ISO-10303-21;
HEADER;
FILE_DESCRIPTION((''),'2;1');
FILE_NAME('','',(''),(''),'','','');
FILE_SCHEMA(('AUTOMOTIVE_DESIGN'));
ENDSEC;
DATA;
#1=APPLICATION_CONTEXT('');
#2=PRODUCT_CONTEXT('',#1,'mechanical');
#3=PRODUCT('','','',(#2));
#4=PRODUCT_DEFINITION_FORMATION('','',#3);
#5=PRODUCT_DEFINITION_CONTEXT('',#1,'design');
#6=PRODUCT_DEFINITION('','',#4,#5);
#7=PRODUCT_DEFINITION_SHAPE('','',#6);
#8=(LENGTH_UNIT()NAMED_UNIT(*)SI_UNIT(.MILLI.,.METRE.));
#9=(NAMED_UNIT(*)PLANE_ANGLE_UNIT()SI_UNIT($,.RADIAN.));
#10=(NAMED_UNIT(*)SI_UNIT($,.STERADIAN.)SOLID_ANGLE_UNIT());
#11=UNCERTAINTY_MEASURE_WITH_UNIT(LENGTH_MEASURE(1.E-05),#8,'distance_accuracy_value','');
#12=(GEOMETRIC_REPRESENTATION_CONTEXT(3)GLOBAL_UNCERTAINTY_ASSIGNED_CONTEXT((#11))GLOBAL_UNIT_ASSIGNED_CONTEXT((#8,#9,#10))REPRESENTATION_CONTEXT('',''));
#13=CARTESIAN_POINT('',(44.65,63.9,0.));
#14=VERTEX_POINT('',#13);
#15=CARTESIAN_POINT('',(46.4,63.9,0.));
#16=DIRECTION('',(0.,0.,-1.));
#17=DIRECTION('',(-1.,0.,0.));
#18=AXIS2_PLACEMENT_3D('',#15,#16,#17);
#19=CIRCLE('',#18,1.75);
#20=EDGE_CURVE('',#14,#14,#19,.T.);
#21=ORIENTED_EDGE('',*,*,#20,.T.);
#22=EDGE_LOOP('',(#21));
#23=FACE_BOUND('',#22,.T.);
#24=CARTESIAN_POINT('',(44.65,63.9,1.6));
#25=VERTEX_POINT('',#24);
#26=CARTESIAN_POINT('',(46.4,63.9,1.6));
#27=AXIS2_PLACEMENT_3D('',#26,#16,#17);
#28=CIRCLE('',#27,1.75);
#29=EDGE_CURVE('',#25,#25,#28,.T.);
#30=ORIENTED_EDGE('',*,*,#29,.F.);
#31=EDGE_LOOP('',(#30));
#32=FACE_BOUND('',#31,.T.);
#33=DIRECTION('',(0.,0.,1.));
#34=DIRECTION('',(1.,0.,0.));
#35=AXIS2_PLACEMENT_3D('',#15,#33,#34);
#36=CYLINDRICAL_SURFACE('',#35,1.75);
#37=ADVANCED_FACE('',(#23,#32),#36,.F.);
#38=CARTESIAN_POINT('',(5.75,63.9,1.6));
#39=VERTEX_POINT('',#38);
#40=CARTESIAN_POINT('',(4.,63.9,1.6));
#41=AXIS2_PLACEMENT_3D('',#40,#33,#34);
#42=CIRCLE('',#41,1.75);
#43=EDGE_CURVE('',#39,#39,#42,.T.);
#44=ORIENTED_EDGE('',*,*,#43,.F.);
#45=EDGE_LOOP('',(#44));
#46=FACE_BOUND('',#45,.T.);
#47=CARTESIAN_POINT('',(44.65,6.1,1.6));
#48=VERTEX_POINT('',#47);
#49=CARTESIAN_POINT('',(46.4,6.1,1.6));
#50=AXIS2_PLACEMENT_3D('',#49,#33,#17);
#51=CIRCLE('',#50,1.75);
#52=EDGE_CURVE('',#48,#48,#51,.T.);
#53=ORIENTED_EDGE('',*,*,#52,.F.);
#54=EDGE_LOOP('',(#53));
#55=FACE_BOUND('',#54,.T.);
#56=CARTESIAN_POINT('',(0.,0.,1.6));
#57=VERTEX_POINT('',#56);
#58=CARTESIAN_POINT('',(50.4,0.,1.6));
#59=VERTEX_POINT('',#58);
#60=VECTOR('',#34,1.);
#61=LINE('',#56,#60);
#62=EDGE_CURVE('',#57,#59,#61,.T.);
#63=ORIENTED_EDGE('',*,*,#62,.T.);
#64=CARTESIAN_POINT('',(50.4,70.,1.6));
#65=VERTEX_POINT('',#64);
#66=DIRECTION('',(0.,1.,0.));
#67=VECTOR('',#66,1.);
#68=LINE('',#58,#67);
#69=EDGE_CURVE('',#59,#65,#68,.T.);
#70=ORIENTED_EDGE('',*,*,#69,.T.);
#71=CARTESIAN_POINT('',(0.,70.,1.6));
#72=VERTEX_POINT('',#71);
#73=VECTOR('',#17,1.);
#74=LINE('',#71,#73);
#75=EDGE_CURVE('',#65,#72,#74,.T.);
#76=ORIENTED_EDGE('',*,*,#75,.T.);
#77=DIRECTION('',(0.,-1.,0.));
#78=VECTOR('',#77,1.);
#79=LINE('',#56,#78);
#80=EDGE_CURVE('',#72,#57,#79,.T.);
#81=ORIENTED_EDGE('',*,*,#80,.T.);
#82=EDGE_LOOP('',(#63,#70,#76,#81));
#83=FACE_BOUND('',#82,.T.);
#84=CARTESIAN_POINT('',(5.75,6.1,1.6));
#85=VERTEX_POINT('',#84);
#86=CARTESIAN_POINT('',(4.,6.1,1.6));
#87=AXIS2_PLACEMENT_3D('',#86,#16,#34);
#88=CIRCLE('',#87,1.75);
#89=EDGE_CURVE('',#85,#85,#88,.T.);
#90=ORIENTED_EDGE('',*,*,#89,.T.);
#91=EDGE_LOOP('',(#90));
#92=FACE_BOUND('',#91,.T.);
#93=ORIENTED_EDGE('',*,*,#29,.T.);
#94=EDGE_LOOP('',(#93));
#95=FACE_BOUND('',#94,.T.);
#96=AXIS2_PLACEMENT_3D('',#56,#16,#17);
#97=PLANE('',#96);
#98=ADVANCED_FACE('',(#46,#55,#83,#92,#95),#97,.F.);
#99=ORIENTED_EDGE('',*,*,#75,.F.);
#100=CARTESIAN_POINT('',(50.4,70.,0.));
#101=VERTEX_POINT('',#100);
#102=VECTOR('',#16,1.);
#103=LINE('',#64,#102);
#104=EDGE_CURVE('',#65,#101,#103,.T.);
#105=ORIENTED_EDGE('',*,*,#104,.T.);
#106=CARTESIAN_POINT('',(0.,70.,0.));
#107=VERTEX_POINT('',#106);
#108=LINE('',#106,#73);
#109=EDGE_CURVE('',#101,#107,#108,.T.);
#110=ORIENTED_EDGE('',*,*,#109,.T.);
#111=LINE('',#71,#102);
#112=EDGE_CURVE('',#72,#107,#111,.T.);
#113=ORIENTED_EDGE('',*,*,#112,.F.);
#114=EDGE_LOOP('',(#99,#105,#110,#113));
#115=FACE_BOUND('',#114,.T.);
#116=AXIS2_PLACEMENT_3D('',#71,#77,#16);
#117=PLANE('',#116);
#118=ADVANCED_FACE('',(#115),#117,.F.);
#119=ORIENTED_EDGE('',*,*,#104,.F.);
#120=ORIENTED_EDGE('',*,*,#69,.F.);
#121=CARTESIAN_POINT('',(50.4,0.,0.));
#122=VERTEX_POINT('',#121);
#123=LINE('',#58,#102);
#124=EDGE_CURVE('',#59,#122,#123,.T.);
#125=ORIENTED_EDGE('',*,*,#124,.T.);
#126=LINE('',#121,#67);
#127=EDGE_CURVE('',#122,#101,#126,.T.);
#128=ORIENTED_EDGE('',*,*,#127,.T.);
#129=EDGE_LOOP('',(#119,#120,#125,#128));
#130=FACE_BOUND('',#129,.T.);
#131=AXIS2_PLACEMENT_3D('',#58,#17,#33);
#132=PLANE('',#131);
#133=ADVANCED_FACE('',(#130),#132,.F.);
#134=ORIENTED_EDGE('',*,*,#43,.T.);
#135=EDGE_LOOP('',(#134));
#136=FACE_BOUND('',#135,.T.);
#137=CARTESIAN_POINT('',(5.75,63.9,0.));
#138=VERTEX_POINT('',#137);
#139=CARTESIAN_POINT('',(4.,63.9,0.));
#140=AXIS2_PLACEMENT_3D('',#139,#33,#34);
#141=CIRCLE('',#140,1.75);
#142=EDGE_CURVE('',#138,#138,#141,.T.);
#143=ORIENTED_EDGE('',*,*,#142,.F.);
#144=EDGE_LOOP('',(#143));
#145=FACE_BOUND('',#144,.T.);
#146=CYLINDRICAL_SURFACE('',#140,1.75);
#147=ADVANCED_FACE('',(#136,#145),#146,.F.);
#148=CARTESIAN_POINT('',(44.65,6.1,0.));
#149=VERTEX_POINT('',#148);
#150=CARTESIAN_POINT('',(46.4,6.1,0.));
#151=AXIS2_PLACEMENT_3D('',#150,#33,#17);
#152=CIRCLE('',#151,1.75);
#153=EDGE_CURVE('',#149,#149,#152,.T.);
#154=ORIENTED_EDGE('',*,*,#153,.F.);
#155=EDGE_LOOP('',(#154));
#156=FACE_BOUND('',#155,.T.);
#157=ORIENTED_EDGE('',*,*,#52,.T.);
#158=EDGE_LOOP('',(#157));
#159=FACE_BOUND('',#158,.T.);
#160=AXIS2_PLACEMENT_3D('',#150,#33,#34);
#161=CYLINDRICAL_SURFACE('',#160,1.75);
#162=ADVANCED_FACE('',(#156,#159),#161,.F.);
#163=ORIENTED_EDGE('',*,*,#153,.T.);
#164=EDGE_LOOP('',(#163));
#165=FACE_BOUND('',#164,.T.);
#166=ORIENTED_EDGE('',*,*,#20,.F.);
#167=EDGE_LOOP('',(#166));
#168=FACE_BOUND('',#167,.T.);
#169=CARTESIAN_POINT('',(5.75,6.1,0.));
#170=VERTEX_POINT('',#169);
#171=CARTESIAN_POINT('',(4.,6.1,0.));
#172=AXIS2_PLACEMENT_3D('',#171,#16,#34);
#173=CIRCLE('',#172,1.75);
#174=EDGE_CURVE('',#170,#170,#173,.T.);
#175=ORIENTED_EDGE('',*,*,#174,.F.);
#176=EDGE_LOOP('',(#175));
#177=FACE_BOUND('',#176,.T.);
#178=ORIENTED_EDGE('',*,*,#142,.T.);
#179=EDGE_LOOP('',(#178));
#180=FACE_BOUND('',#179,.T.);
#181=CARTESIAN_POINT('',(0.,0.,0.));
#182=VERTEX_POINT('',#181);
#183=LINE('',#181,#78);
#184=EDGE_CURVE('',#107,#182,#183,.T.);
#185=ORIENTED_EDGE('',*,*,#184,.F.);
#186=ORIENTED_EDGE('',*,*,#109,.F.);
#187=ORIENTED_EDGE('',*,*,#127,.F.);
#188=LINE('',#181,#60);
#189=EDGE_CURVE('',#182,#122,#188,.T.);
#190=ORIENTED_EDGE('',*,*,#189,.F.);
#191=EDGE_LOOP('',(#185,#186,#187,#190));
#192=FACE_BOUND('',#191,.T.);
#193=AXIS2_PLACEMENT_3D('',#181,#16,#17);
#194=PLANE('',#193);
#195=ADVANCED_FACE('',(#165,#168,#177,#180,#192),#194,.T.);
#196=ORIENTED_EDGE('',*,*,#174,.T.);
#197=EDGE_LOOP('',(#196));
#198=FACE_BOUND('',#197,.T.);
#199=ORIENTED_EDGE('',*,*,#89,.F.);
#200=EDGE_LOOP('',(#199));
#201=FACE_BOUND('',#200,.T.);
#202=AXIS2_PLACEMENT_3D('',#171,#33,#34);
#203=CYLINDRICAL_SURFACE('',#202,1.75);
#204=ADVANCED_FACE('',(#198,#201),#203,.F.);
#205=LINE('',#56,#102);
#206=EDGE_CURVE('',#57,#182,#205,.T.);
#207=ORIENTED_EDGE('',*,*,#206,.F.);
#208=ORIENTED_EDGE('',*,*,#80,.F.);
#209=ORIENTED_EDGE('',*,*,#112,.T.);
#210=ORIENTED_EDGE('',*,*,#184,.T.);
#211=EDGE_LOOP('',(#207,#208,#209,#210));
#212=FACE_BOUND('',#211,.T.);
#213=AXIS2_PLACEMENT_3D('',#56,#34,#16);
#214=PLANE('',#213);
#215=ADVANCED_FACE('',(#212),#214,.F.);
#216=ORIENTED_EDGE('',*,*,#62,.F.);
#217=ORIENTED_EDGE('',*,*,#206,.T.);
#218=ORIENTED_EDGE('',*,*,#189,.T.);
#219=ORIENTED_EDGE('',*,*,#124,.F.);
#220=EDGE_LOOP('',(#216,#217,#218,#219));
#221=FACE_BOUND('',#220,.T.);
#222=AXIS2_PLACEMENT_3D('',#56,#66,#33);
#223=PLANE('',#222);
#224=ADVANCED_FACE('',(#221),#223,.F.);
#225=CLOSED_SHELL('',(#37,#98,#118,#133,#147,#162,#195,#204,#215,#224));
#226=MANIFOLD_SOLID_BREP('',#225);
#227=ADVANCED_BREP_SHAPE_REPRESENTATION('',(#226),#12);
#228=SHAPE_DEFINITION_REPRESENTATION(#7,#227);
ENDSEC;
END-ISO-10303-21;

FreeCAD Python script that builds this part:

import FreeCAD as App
import Part
import Sketcher

V = App.Vector


def add_polygon(sketch, points):
    """Adds a closed chain of lines whose ends are joined by coincident constraints."""
    first, n = sketch.GeometryCount, len(points)
    for a, b in zip(points, points[1:] + points[:1]):
        sketch.addGeometry(Part.LineSegment(App.Vector(*a, 0), App.Vector(*b, 0)), False)
    for i in range(n):
        sketch.addConstraint(Sketcher.Constraint("Coincident", first + i, 2, first + (i + 1) % n, 1))

doc = App.newDocument("Part")
body = doc.addObject("PartDesign::Body", "Body")

sketch1 = body.newObject("Sketcher::SketchObject", "Sketch")
sketch1.AttachmentSupport = (doc.getObject("XY_Plane"), [""])
sketch1.MapMode = "FlatFace"
add_polygon(sketch1, [(0, 70), (0, 0), (50.4, 0), (50.4, 70)])
sketch1.addConstraint(Sketcher.Constraint("Vertical", 0))
sketch1.addConstraint(Sketcher.Constraint("Horizontal", 1))
sketch1.addConstraint(Sketcher.Constraint("Vertical", 2))
sketch1.addConstraint(Sketcher.Constraint("Horizontal", 3))
sketch1.addConstraint(Sketcher.Constraint("Coincident", 0, 2, -1, 1))
sketch1.addConstraint(Sketcher.Constraint("DistanceY", 0, 2, 0, 1, 70.0))
sketch1.addConstraint(Sketcher.Constraint("DistanceX", 1, 1, 1, 2, 50.4))
pad1 = body.newObject("PartDesign::Pad", "Pad")
pad1.Profile = sketch1
pad1.Length = 1.6

sketch2 = body.newObject("Sketcher::SketchObject", "Sketch001")
sketch2.AttachmentSupport = (doc.getObject("XY_Plane"), [""])
sketch2.MapMode = "FlatFace"
sketch2.AttachmentOffset = App.Placement(V(0, 0, 1.6), App.Rotation())
sketch2.addGeometry(Part.Circle(V(4, 63.9, 0), V(0, 0, 1), 1.75), False)
sketch2.addConstraint(Sketcher.Constraint("Diameter", 0, 3.5))
sketch2.addConstraint(Sketcher.Constraint("DistanceX", -1, 1, 0, 3, 4.0))
sketch2.addConstraint(Sketcher.Constraint("DistanceY", -1, 1, 0, 3, 63.9))
pocket1 = body.newObject("PartDesign::Pocket", "Pocket")
pocket1.Profile = sketch2
pocket1.Type = "ThroughAll"
doc.recompute()

datumplane = body.newObject("PartDesign::Plane", "DatumPlane")
datumplane.AttachmentSupport = (doc.getObject("YZ_Plane"), [""])
datumplane.MapMode = "FlatFace"
datumplane.AttachmentOffset = App.Placement(V(0, 0, 25.2), App.Rotation())
mirrored = body.newObject("PartDesign::Mirrored", "Mirrored")
mirrored.Originals = [pocket1]
mirrored.MirrorPlane = (datumplane, [""])
body.Tip = mirrored
doc.recompute()

datumplane2 = body.newObject("PartDesign::Plane", "DatumPlane001")
datumplane2.AttachmentSupport = (doc.getObject("XZ_Plane"), [""])
datumplane2.MapMode = "FlatFace"
datumplane2.AttachmentOffset = App.Placement(V(0, 0, -35), App.Rotation())
mirrored2 = body.newObject("PartDesign::Mirrored", "Mirrored001")
mirrored2.Originals = [pocket1]
mirrored2.MirrorPlane = (datumplane2, [""])
body.Tip = mirrored2

sketch3 = body.newObject("Sketcher::SketchObject", "Sketch002")
sketch3.AttachmentSupport = (doc.getObject("XY_Plane"), [""])
sketch3.MapMode = "FlatFace"
sketch3.AttachmentOffset = App.Placement(V(0, 0, 1.6), App.Rotation())
sketch3.addGeometry(Part.Circle(V(46.4, 6.1, 0), V(0, 0, 1), 1.75), False)
sketch3.addConstraint(Sketcher.Constraint("Diameter", 0, 3.5))
sketch3.addConstraint(Sketcher.Constraint("DistanceX", -1, 1, 0, 3, 46.4))
sketch3.addConstraint(Sketcher.Constraint("DistanceY", -1, 1, 0, 3, 6.1))
pocket2 = body.newObject("PartDesign::Pocket", "Pocket001")
pocket2.Profile = sketch3
pocket2.Type = "ThroughAll"

doc.recompute()
